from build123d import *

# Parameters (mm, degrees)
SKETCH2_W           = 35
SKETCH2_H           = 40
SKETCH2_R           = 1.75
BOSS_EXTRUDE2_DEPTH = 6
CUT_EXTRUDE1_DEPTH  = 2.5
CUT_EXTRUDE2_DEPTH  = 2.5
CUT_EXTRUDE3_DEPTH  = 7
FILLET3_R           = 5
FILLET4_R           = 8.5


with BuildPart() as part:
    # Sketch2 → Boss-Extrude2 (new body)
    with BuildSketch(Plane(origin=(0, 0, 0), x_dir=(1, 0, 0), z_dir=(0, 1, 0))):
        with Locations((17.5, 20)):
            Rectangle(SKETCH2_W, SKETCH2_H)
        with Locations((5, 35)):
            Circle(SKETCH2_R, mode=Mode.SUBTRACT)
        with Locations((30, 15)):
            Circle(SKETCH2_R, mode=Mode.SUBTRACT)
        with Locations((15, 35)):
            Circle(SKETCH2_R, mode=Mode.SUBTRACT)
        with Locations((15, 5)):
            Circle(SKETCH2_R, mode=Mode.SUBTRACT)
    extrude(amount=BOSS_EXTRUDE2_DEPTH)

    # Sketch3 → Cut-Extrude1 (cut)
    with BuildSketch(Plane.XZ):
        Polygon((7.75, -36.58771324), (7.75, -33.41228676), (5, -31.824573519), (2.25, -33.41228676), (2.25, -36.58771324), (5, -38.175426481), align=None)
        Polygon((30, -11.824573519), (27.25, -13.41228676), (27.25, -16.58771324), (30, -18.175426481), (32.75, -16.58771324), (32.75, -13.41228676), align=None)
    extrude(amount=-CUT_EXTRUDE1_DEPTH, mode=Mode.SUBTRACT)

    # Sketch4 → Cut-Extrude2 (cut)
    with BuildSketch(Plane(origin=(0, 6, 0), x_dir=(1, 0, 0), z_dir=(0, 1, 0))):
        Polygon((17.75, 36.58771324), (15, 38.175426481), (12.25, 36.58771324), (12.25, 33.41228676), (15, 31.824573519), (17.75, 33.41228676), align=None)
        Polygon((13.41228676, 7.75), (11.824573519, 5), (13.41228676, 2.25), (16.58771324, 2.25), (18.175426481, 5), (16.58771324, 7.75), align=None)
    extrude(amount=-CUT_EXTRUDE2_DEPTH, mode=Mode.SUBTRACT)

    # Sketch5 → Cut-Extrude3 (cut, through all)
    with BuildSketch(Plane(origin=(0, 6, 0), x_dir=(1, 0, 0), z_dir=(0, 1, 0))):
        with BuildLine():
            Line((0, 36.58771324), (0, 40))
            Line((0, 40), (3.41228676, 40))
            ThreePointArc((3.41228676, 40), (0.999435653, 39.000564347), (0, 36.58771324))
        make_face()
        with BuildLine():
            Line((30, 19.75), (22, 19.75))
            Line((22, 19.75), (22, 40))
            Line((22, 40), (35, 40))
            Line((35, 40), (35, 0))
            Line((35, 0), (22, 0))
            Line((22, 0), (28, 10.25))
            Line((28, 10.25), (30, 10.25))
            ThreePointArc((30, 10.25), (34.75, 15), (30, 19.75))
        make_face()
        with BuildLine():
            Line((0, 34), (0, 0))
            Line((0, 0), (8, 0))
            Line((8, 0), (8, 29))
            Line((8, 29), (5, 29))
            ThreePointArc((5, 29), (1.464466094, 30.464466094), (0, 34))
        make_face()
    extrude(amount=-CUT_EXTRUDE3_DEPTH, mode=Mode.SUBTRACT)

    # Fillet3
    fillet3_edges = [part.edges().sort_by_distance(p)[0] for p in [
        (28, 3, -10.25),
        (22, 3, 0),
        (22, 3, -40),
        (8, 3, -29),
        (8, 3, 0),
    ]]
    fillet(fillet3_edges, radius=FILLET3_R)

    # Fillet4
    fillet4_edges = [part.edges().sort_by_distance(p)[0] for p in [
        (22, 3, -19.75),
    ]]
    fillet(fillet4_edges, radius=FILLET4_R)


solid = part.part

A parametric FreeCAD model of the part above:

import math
import FreeCAD as App
import Part
import Sketcher
from FreeCAD import Vector
Q = App.Units.Quantity


def edges_at(feature, points):
    """Names of the edges that pass closest to the given points."""
    edges = feature.Shape.Edges
    near = lambda p: min(range(len(edges)), key=lambda i: edges[i].distToShape(Part.Vertex(*p))[0])
    return sorted({f"Edge{near(p) + 1}" for p in points})

doc = App.newDocument("Part")
body = doc.addObject("PartDesign::Body", "Body")

# Sketch on XZ plane
sketch1 = doc.addObject("Sketcher::SketchObject", "Sketch")
body.addObject(sketch1)
sketch1.AttachmentSupport = (doc.XZ_Plane, [""])
sketch1.MapMode = "FlatFace"
sketch1.addGeometry([
    Part.LineSegment(Vector(0, -40, 0), Vector(0, 0, 0)),  # 0
    Part.LineSegment(Vector(0, 0, 0), Vector(35, 0, 0)),  # 1
    Part.LineSegment(Vector(35, 0, 0), Vector(35, -40, 0)),  # 2
    Part.LineSegment(Vector(35, -40, 0), Vector(0, -40, 0)),  # 3
    Part.Circle(Vector(15, -5, 0), Vector(0, 0, 1), 1.8),  # 4
    Part.Circle(Vector(30, -15, 0), Vector(0, 0, 1), 1.8),  # 5
    Part.Circle(Vector(5, -35, 0), Vector(0, 0, 1), 1.8),  # 6
    Part.Circle(Vector(15, -35, 0), Vector(0, 0, 1), 1.8),  # 7
], False)
sketch1.addConstraint([
    Sketcher.Constraint("Coincident", 0, 2, 1, 1),
    Sketcher.Constraint("Coincident", 1, 2, 2, 1),
    Sketcher.Constraint("Coincident", 2, 2, 3, 1),
    Sketcher.Constraint("Coincident", 3, 2, 0, 1),
    Sketcher.Constraint("Vertical", 0),
    Sketcher.Constraint("Horizontal", 1),
    Sketcher.Constraint("Vertical", 2),
    Sketcher.Constraint("Horizontal", 3),
    Sketcher.Constraint("Coincident", 0, 2, -1, 1),
    Sketcher.Constraint("Equal", 4, 5),
    Sketcher.Constraint("Equal", 5, 6),
    Sketcher.Constraint("Equal", 6, 7),
    Sketcher.Constraint("Horizontal", 6, 3, 7, 3),
    Sketcher.Constraint("Vertical", 4, 3, 7, 3),
    Sketcher.Constraint("Diameter", 4, 3.5),
    Sketcher.Constraint("DistanceX", 1, 1, 1, 2, 35.0),
    Sketcher.Constraint("DistanceY", 0, 1, 0, 2, 40.0),
    Sketcher.Constraint("DistanceX", -1, 1, 4, 3, 15.0),
    Sketcher.Constraint("DistanceY", 4, 3, -1, 1, 5.0),
    Sketcher.Constraint("DistanceX", -1, 1, 5, 3, 30.0),
    Sketcher.Constraint("DistanceY", 5, 3, -1, 1, 15.0),
    Sketcher.Constraint("DistanceX", -1, 1, 6, 3, 5.0),
    Sketcher.Constraint("DistanceY", 6, 3, -1, 1, 35.0),
])
pad1 = doc.addObject("PartDesign::Pad", "Pad")
body.addObject(pad1)
pad1.Profile = sketch1
pad1.Length = 6
pad1.Reversed = True

# Sketch on XZ plane
sketch2 = doc.addObject("Sketcher::SketchObject", "Sketch001")
body.addObject(sketch2)
sketch2.AttachmentSupport = (doc.XZ_Plane, [""])
sketch2.MapMode = "FlatFace"
sketch2.addGeometry([
    Part.LineSegment(Vector(7.8, -36.6, 0), Vector(7.8, -33.4, 0)),  # 0
    Part.LineSegment(Vector(7.8, -33.4, 0), Vector(5, -31.8, 0)),  # 1
    Part.LineSegment(Vector(5, -31.8, 0), Vector(2.2, -33.4, 0)),  # 2
    Part.LineSegment(Vector(2.2, -33.4, 0), Vector(2.2, -36.6, 0)),  # 3
    Part.LineSegment(Vector(2.2, -36.6, 0), Vector(5, -38.2, 0)),  # 4
    Part.LineSegment(Vector(5, -38.2, 0), Vector(7.8, -36.6, 0)),  # 5
    Part.LineSegment(Vector(30, -11.8, 0), Vector(27.2, -13.4, 0)),  # 6
    Part.LineSegment(Vector(27.2, -13.4, 0), Vector(27.2, -16.6, 0)),  # 7
    Part.LineSegment(Vector(27.2, -16.6, 0), Vector(30, -18.2, 0)),  # 8
    Part.LineSegment(Vector(30, -18.2, 0), Vector(32.8, -16.6, 0)),  # 9
    Part.LineSegment(Vector(32.8, -16.6, 0), Vector(32.8, -13.4, 0)),  # 10
    Part.LineSegment(Vector(32.8, -13.4, 0), Vector(30, -11.8, 0)),  # 11
], False)
sketch2.addConstraint([
    Sketcher.Constraint("Coincident", 0, 2, 1, 1),
    Sketcher.Constraint("Coincident", 1, 2, 2, 1),
    Sketcher.Constraint("Coincident", 2, 2, 3, 1),
    Sketcher.Constraint("Coincident", 3, 2, 4, 1),
    Sketcher.Constraint("Coincident", 4, 2, 5, 1),
    Sketcher.Constraint("Coincident", 5, 2, 0, 1),
    Sketcher.Constraint("Coincident", 6, 2, 7, 1),
    Sketcher.Constraint("Coincident", 7, 2, 8, 1),
    Sketcher.Constraint("Coincident", 8, 2, 9, 1),
    Sketcher.Constraint("Coincident", 9, 2, 10, 1),
    Sketcher.Constraint("Coincident", 10, 2, 11, 1),
    Sketcher.Constraint("Coincident", 11, 2, 6, 1),
    Sketcher.Constraint("Vertical", 0),
    Sketcher.Constraint("Vertical", 3),
    Sketcher.Constraint("Vertical", 7),
    Sketcher.Constraint("Vertical", 10),
    Sketcher.Constraint("Parallel", 1, 4),
    Sketcher.Constraint("Parallel", 2, 5),
    Sketcher.Constraint("Parallel", 5, 6),
    Sketcher.Constraint("Parallel", 4, 8),
    Sketcher.Constraint("Parallel", 6, 9),
    Sketcher.Constraint("Parallel", 8, 11),
    Sketcher.Constraint("Horizontal", 0, 2, 2, 2),
    Sketcher.Constraint("Horizontal", 3, 2, 5, 2),
    Sketcher.Constraint("Horizontal", 7, 2, 9, 2),
    Sketcher.Constraint("Horizontal", 6, 2, 10, 2),
    Sketcher.Constraint("Vertical", 1, 2, 4, 2),
    Sketcher.Constraint("Equal", 3, 7),
    Sketcher.Constraint("Equal", 5, 6),
    Sketcher.Constraint("Angle", 1, Q("150 deg")),
    Sketcher.Constraint("DistanceX", -1, 1, 1, 2, 5.0),
    Sketcher.Constraint("DistanceX", -1, 1, 8, 2, 30.0),
    Sketcher.Constraint("DistanceY", 0, 2, 6, 2, 20.0),
    Sketcher.Constraint("DistanceX", 2, 2, 0, 2, 5.5),
    Sketcher.Constraint("DistanceY", 0, 1, 0, 2, 3.175426),
    Sketcher.Constraint("DistanceY", 0, 2, -1, 1, 33.412287),
])
pocket1 = doc.addObject("PartDesign::Pocket", "Pocket")
body.addObject(pocket1)
pocket1.Profile = sketch2
pocket1.Length = 2.5

# Sketch on XZ plane
sketch3 = doc.addObject("Sketcher::SketchObject", "Sketch002")
body.addObject(sketch3)
sketch3.AttachmentSupport = (doc.XZ_Plane, [""])
sketch3.MapMode = "FlatFace"
sketch3.AttachmentOffset = App.Placement(Vector(0, 0, -6), App.Rotation())
sketch3.addGeometry([
    Part.LineSegment(Vector(17.8, -36.6, 0), Vector(15, -38.2, 0)),  # 0
    Part.LineSegment(Vector(15, -38.2, 0), Vector(12.2, -36.6, 0)),  # 1
    Part.LineSegment(Vector(12.2, -36.6, 0), Vector(12.2, -33.4, 0)),  # 2
    Part.LineSegment(Vector(12.2, -33.4, 0), Vector(15, -31.8, 0)),  # 3
    Part.LineSegment(Vector(15, -31.8, 0), Vector(17.8, -33.4, 0)),  # 4
    Part.LineSegment(Vector(17.8, -33.4, 0), Vector(17.8, -36.6, 0)),  # 5
    Part.LineSegment(Vector(13.4, -7.8, 0), Vector(11.8, -5, 0)),  # 6
    Part.LineSegment(Vector(11.8, -5, 0), Vector(13.4, -2.2, 0)),  # 7
    Part.LineSegment(Vector(13.4, -2.2, 0), Vector(16.6, -2.2, 0)),  # 8
    Part.LineSegment(Vector(16.6, -2.2, 0), Vector(18.2, -5, 0)),  # 9
    Part.LineSegment(Vector(18.2, -5, 0), Vector(16.6, -7.8, 0)),  # 10
    Part.LineSegment(Vector(16.6, -7.8, 0), Vector(13.4, -7.8, 0)),  # 11
], False)
sketch3.addConstraint([
    Sketcher.Constraint("Coincident", 0, 2, 1, 1),
    Sketcher.Constraint("Coincident", 1, 2, 2, 1),
    Sketcher.Constraint("Coincident", 2, 2, 3, 1),
    Sketcher.Constraint("Coincident", 3, 2, 4, 1),
    Sketcher.Constraint("Coincident", 4, 2, 5, 1),
    Sketcher.Constraint("Coincident", 5, 2, 0, 1),
    Sketcher.Constraint("Coincident", 6, 2, 7, 1),
    Sketcher.Constraint("Coincident", 7, 2, 8, 1),
    Sketcher.Constraint("Coincident", 8, 2, 9, 1),
    Sketcher.Constraint("Coincident", 9, 2, 10, 1),
    Sketcher.Constraint("Coincident", 10, 2, 11, 1),
    Sketcher.Constraint("Coincident", 11, 2, 6, 1),
    Sketcher.Constraint("Vertical", 2),
    Sketcher.Constraint("Vertical", 5),
    Sketcher.Constraint("Horizontal", 8),
    Sketcher.Constraint("Horizontal", 11),
    Sketcher.Constraint("Parallel", 0, 3),
    Sketcher.Constraint("Parallel", 1, 4),
    Sketcher.Constraint("Perpendicular", 3, 6),
    Sketcher.Constraint("Perpendicular", 4, 7),
    Sketcher.Constraint("Parallel", 6, 9),
    Sketcher.Constraint("Parallel", 7, 10),
    Sketcher.Constraint("Horizontal", 2, 2, 4, 2),
    Sketcher.Constraint("Horizontal", 1, 2, 5, 2),
    Sketcher.Constraint("Horizontal", 6, 2, 9, 2),
    Sketcher.Constraint("Vertical", 0, 2, 3, 2),
    Sketcher.Constraint("Vertical", 8, 2, 10, 2),
    Sketcher.Constraint("Equal", 11, 2),
    Sketcher.Constraint("Equal", 4, 6),
    Sketcher.Constraint("Angle", 0, Q("-150 deg")),
    Sketcher.Constraint("DistanceX", -1, 1, 0, 2, 15.0),
    Sketcher.Constraint("DistanceY", 6, 2, -1, 1, 5.0),
    Sketcher.Constraint("DistanceX", 2, 2, 4, 2, 5.5),
    Sketcher.Constraint("DistanceX", 8, 1, 8, 2, 3.175426),
    Sketcher.Constraint("DistanceY", 0, 2, -1, 1, 38.175426),
    Sketcher.Constraint("DistanceX", -1, 1, 6, 2, 11.824574),
])
pocket2 = doc.addObject("PartDesign::Pocket", "Pocket001")
body.addObject(pocket2)
pocket2.Profile = sketch3
pocket2.Length = 2.5
pocket2.Reversed = True

# Sketch on XZ plane
sketch4 = doc.addObject("Sketcher::SketchObject", "Sketch003")
body.addObject(sketch4)
sketch4.AttachmentSupport = (doc.XZ_Plane, [""])
sketch4.MapMode = "FlatFace"
sketch4.AttachmentOffset = App.Placement(Vector(0, 0, -6), App.Rotation())
sketch4.addGeometry([
    Part.LineSegment(Vector(0, -40, 0), Vector(0, -36.6, 0)),  # 0
    Part.ArcOfCircle(Part.Circle(Vector(3.4, -36.6, 0), Vector(0, 0, 1), 3.4), math.radians(-180), math.radians(-90)),  # 1
    Part.LineSegment(Vector(3.4, -40, 0), Vector(0, -40, 0)),  # 2
    Part.LineSegment(Vector(22, -19.8, 0), Vector(30, -19.8, 0)),  # 3
    Part.ArcOfCircle(Part.Circle(Vector(30, -15, 0), Vector(0, 0, 1), 4.8), math.radians(-90), math.radians(90)),  # 4
    Part.LineSegment(Vector(30, -10.2, 0), Vector(28, -10.2, 0)),  # 5
    Part.LineSegment(Vector(28, -10.2, 0), Vector(22, 0, 0)),  # 6
    Part.LineSegment(Vector(22, 0, 0), Vector(35, 0, 0)),  # 7
    Part.LineSegment(Vector(35, 0, 0), Vector(35, -40, 0)),  # 8
    Part.LineSegment(Vector(35, -40, 0), Vector(22, -40, 0)),  # 9
    Part.LineSegment(Vector(22, -40, 0), Vector(22, -19.8, 0)),  # 10
    Part.LineSegment(Vector(0, -34, 0), Vector(0, 0, 0)),  # 11
    Part.LineSegment(Vector(0, 0, 0), Vector(8, 0, 0)),  # 12
    Part.LineSegment(Vector(8, 0, 0), Vector(8, -29, 0)),  # 13
    Part.LineSegment(Vector(8, -29, 0), Vector(5, -29, 0)),  # 14
    Part.ArcOfCircle(Part.Circle(Vector(5, -34, 0), Vector(0, 0, 1), 5), math.radians(90), math.radians(180)),  # 15
], False)
sketch4.addConstraint([
    Sketcher.Constraint("Tangent", 0, 2, 1, 1),
    Sketcher.Constraint("Tangent", 1, 2, 2, 1),
    Sketcher.Constraint("Coincident", 2, 2, 0, 1),
    Sketcher.Constraint("Tangent", 3, 2, 4, 1),
    Sketcher.Constraint("Tangent", 4, 2, 5, 1),
    Sketcher.Constraint("Coincident", 5, 2, 6, 1),
    Sketcher.Constraint("Coincident", 6, 2, 7, 1),
    Sketcher.Constraint("Coincident", 7, 2, 8, 1),
    Sketcher.Constraint("Coincident", 8, 2, 9, 1),
    Sketcher.Constraint("Coincident", 9, 2, 10, 1),
    Sketcher.Constraint("Coincident", 10, 2, 3, 1),
    Sketcher.Constraint("Coincident", 11, 2, 12, 1),
    Sketcher.Constraint("Coincident", 12, 2, 13, 1),
    Sketcher.Constraint("Coincident", 13, 2, 14, 1),
    Sketcher.Constraint("Tangent", 14, 2, 15, 1),
    Sketcher.Constraint("Tangent", 15, 2, 11, 1),
    Sketcher.Constraint("Vertical", 0),
    Sketcher.Constraint("Horizontal", 2),
    Sketcher.Constraint("Horizontal", 3),
    Sketcher.Constraint("Horizontal", 5),
    Sketcher.Constraint("Horizontal", 7),
    Sketcher.Constraint("Vertical", 8),
    Sketcher.Constraint("Horizontal", 9),
    Sketcher.Constraint("Vertical", 10),
    Sketcher.Constraint("Vertical", 11),
    Sketcher.Constraint("Horizontal", 12),
    Sketcher.Constraint("Vertical", 13),
    Sketcher.Constraint("Horizontal", 14),
    Sketcher.Constraint("Coincident", 11, 2, -1, 1),
    Sketcher.Constraint("PointOnObject", 0, 2, -2),
    Sketcher.Constraint("PointOnObject", 6, 2, -1),
    Sketcher.Constraint("Horizontal", 2, 2, 8, 2),
    Sketcher.Constraint("Vertical", 6, 2, 9, 2),
    Sketcher.Constraint("Equal", 3, 12),
    Sketcher.Constraint("Radius", 15, 5.0),
    Sketcher.Constraint("DistanceX", 3, 1, 3, 2, 8.0),
    Sketcher.Constraint("DistanceX", 5, 2, 5, 1, 2.0),
    Sketcher.Constraint("DistanceX", 7, 1, 7, 2, 13.0),
    Sketcher.Constraint("DistanceY", 8, 2, 8, 1, 40.0),
    Sketcher.Constraint("DistanceY", 11, 1, 11, 2, 34.0),
    Sketcher.Constraint("Radius", 4, 4.75),
    Sketcher.Constraint("DistanceX", -1, 1, 4, 3, 30.0),
    Sketcher.Constraint("DistanceY", 4, 3, -1, 1, 15.0),
    Sketcher.Constraint("Radius", 1, 3.412287),
])
pocket3 = doc.addObject("PartDesign::Pocket", "Pocket002")
body.addObject(pocket3)
pocket3.Profile = sketch4
pocket3.Type = "ThroughAll"
pocket3.Reversed = True
doc.recompute()

fillet = doc.addObject("PartDesign::Fillet", "Fillet")
body.addObject(fillet)
fillet.Base = (pocket3, edges_at(pocket3, [
    (28, 3, -10.25),
    (22, 3, 0),
    (22, 3, -40),
    (8, 3, -29),
    (8, 3, 0),
]))
fillet.Radius = 5
doc.recompute()

fillet2 = doc.addObject("PartDesign::Fillet", "Fillet001")
body.addObject(fillet2)
fillet2.Base = (fillet, edges_at(fillet, [(22, 3, -19.75)]))
fillet2.Radius = 8.5

doc.recompute()
